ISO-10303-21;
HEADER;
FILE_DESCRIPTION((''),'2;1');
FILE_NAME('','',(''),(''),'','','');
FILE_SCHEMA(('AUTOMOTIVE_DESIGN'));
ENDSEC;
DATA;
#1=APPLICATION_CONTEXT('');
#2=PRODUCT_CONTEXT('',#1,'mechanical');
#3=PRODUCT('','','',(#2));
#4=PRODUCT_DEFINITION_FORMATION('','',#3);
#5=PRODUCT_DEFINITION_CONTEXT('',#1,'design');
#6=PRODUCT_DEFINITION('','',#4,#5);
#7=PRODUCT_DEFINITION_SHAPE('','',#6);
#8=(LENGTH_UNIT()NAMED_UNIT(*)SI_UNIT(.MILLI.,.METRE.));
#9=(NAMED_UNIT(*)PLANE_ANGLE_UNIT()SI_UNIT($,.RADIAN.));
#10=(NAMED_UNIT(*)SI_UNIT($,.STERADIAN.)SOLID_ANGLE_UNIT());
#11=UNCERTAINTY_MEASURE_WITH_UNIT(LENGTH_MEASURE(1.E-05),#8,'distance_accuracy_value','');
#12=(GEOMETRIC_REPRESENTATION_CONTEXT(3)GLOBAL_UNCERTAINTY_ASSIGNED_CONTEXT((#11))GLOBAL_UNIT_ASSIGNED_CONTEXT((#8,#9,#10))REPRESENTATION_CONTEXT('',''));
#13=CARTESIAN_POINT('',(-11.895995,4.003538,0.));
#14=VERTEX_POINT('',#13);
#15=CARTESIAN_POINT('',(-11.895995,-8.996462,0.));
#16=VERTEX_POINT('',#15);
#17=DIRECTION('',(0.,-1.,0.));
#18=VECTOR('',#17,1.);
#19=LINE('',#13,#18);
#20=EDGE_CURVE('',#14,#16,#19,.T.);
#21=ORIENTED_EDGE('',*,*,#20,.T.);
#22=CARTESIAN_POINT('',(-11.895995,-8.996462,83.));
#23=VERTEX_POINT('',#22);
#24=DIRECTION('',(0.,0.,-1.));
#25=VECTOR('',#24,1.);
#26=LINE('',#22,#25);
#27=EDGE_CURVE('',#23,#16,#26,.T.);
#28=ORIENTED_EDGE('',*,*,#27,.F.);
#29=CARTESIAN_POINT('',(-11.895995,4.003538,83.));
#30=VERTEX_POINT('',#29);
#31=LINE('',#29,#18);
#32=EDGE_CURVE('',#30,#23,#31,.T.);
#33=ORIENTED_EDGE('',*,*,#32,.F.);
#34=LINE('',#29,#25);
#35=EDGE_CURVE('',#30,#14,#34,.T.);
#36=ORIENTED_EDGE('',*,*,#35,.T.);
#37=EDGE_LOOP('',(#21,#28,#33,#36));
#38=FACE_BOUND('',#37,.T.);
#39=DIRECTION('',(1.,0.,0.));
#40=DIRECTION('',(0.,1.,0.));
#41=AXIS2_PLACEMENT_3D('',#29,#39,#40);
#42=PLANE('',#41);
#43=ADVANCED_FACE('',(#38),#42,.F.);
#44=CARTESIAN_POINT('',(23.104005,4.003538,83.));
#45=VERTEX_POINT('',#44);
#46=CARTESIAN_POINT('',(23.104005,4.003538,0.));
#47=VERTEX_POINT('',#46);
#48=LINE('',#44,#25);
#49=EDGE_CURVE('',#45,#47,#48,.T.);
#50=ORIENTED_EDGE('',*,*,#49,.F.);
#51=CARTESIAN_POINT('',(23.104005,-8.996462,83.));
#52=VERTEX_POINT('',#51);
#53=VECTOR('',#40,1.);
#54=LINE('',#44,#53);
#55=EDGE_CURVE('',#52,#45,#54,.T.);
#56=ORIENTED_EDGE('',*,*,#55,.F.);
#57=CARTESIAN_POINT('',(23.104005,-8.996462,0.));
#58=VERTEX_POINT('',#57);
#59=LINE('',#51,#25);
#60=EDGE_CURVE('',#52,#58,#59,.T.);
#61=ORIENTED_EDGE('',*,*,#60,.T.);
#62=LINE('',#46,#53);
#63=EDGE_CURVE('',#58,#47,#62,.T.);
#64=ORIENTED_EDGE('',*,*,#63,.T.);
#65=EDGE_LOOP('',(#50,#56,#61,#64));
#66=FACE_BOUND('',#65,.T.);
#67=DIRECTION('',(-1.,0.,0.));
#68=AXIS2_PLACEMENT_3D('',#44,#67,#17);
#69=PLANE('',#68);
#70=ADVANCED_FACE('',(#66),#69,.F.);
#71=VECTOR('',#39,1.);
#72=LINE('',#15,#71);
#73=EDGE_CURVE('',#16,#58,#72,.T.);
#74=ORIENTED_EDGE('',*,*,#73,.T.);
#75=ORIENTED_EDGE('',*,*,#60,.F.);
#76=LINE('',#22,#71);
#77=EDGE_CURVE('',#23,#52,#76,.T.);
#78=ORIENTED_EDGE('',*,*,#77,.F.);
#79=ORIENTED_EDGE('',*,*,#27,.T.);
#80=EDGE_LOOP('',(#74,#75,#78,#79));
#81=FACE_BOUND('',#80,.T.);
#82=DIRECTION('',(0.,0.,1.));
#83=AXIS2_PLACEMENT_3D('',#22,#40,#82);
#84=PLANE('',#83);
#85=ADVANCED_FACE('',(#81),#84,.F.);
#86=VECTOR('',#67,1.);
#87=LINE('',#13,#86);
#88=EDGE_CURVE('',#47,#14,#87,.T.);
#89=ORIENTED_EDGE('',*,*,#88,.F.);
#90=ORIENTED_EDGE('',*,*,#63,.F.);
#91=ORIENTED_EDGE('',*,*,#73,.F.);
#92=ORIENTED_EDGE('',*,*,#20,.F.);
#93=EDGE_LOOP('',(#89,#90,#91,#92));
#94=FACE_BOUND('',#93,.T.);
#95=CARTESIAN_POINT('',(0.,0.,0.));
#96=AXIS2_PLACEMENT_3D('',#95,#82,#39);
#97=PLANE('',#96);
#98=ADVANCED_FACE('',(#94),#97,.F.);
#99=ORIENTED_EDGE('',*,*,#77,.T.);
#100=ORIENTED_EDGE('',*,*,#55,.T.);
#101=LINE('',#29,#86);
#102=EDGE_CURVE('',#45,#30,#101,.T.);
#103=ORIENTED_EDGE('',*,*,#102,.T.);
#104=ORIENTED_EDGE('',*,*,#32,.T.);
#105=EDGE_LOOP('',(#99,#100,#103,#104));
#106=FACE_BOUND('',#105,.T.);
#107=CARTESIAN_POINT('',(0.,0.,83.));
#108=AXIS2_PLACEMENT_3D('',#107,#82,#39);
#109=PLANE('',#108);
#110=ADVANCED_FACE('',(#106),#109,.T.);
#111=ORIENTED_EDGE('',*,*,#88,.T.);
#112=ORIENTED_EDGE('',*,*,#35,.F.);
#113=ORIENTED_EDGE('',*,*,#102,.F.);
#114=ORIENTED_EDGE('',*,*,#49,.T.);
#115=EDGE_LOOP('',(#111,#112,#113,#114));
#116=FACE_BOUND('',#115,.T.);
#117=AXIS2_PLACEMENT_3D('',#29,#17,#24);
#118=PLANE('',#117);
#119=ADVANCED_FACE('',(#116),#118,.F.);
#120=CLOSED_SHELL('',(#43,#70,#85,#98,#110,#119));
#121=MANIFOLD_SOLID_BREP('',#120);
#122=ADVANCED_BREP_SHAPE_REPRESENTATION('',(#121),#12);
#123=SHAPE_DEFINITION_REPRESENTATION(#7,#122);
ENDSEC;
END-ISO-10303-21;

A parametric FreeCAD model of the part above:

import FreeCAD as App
import Part
import Sketcher

V = App.Vector

doc = App.newDocument("Part")
body = doc.addObject("PartDesign::Body", "Body")

# Sketch on XY plane
sketch1 = body.newObject("Sketcher::SketchObject", "Sketch")
sketch1.AttachmentSupport = (doc.getObject("XY_Plane"), [""])
sketch1.MapMode = "FlatFace"
sketch1.addGeometry(Part.LineSegment(V(-11.895995, 4.003538, 0), V(-11.895995, -8.996462, 0)), False)
sketch1.addGeometry(Part.LineSegment(V(-11.895995, -8.996462, 0), V(23.104005, -8.996462, 0)), False)
sketch1.addGeometry(Part.LineSegment(V(23.104005, -8.996462, 0), V(23.104005, 4.003538, 0)), False)
sketch1.addGeometry(Part.LineSegment(V(23.104005, 4.003538, 0), V(-11.895995, 4.003538, 0)), False)
sketch1.addConstraint(Sketcher.Constraint("Coincident", 0, 2, 1, 1))
sketch1.addConstraint(Sketcher.Constraint("Coincident", 1, 2, 2, 1))
sketch1.addConstraint(Sketcher.Constraint("Coincident", 2, 2, 3, 1))
sketch1.addConstraint(Sketcher.Constraint("Coincident", 3, 2, 0, 1))
sketch1.addConstraint(Sketcher.Constraint("Vertical", 0))
sketch1.addConstraint(Sketcher.Constraint("Horizontal", 1))
sketch1.addConstraint(Sketcher.Constraint("Vertical", 2))
sketch1.addConstraint(Sketcher.Constraint("Horizontal", 3))
sketch1.addConstraint(Sketcher.Constraint("DistanceX", 1, 1, 1, 2, 35.0))
sketch1.addConstraint(Sketcher.Constraint("DistanceY", 0, 2, 0, 1, 13.0))
sketch1.addConstraint(Sketcher.Constraint("DistanceX", 0, 2, -1, 1, 11.895995))
sketch1.addConstraint(Sketcher.Constraint("DistanceY", 0, 2, -1, 1, 8.996462))
pad1 = body.newObject("PartDesign::Pad", "Pad")
pad1.Profile = sketch1
pad1.Length = 83

doc.recompute()
